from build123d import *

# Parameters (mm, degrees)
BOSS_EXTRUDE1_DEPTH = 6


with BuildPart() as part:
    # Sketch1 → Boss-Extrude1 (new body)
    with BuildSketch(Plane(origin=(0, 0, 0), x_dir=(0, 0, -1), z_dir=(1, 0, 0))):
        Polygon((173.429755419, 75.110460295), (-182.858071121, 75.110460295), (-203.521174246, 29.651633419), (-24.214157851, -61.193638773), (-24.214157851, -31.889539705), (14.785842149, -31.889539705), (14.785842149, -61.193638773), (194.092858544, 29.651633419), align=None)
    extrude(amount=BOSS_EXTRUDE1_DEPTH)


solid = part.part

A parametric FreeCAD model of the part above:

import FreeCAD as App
import Part
import Sketcher
from FreeCAD import Vector

doc = App.newDocument("Part")
body = doc.addObject("PartDesign::Body", "Body")

sketch1 = doc.addObject("Sketcher::SketchObject", "Sketch")
body.addObject(sketch1)
sketch1.AttachmentSupport = (doc.YZ_Plane, [""])
sketch1.MapMode = "FlatFace"
sketch1.addGeometry([
    Part.LineSegment(Vector(75.11046, -173.429755, 0), Vector(75.11046, 182.858071, 0)),
    Part.LineSegment(Vector(75.11046, 182.858071, 0), Vector(29.651633, 203.521174, 0)),
    Part.LineSegment(Vector(29.651633, 203.521174, 0), Vector(-61.193639, 24.214158, 0)),
    Part.LineSegment(Vector(-61.193639, 24.214158, 0), Vector(-31.88954, 24.214158, 0)),
    Part.LineSegment(Vector(-31.88954, 24.214158, 0), Vector(-31.88954, -14.785842, 0)),
    Part.LineSegment(Vector(-31.88954, -14.785842, 0), Vector(-61.193639, -14.785842, 0)),
    Part.LineSegment(Vector(-61.193639, -14.785842, 0), Vector(29.651633, -194.092859, 0)),
    Part.LineSegment(Vector(29.651633, -194.092859, 0), Vector(75.11046, -173.429755, 0)),
], False)
sketch1.addConstraint([
    Sketcher.Constraint("Coincident", 0, 2, 1, 1),
    Sketcher.Constraint("Coincident", 1, 2, 2, 1),
    Sketcher.Constraint("Coincident", 2, 2, 3, 1),
    Sketcher.Constraint("Coincident", 3, 2, 4, 1),
    Sketcher.Constraint("Coincident", 4, 2, 5, 1),
    Sketcher.Constraint("Coincident", 5, 2, 6, 1),
    Sketcher.Constraint("Coincident", 6, 2, 7, 1),
    Sketcher.Constraint("Coincident", 7, 2, 0, 1),
    Sketcher.Constraint("Vertical", 0),
    Sketcher.Constraint("Horizontal", 3),
    Sketcher.Constraint("Vertical", 4),
    Sketcher.Constraint("Horizontal", 5),
    Sketcher.Constraint("Vertical", 2, 2, 5, 2),
    Sketcher.Constraint("Vertical", 1, 2, 6, 2),
    Sketcher.Constraint("Equal", 2, 6),
    Sketcher.Constraint("Equal", 1, 7),
    Sketcher.Constraint("DistanceY", 4, 2, 4, 1, 39.0),
    Sketcher.Constraint("DistanceX", 3, 2, 0, 2, 107.0),
    Sketcher.Constraint("DistanceX", 3, 1, 3, 2, 29.304099),
    Sketcher.Constraint("Distance", 2, 201.007138),
    Sketcher.Constraint("DistanceY", 0, 1, 0, 2, 356.287827),
    Sketcher.Constraint("DistanceX", -1, 1, 0, 2, 75.11046),
    Sketcher.Constraint("DistanceY", -1, 1, 0, 2, 182.858071),
    Sketcher.Constraint("DistanceY", 6, 2, -1, 1, 194.092859),
])
pad1 = doc.addObject("PartDesign::Pad", "Pad")
body.addObject(pad1)
pad1.Profile = sketch1
pad1.Length = 6

doc.recompute()
